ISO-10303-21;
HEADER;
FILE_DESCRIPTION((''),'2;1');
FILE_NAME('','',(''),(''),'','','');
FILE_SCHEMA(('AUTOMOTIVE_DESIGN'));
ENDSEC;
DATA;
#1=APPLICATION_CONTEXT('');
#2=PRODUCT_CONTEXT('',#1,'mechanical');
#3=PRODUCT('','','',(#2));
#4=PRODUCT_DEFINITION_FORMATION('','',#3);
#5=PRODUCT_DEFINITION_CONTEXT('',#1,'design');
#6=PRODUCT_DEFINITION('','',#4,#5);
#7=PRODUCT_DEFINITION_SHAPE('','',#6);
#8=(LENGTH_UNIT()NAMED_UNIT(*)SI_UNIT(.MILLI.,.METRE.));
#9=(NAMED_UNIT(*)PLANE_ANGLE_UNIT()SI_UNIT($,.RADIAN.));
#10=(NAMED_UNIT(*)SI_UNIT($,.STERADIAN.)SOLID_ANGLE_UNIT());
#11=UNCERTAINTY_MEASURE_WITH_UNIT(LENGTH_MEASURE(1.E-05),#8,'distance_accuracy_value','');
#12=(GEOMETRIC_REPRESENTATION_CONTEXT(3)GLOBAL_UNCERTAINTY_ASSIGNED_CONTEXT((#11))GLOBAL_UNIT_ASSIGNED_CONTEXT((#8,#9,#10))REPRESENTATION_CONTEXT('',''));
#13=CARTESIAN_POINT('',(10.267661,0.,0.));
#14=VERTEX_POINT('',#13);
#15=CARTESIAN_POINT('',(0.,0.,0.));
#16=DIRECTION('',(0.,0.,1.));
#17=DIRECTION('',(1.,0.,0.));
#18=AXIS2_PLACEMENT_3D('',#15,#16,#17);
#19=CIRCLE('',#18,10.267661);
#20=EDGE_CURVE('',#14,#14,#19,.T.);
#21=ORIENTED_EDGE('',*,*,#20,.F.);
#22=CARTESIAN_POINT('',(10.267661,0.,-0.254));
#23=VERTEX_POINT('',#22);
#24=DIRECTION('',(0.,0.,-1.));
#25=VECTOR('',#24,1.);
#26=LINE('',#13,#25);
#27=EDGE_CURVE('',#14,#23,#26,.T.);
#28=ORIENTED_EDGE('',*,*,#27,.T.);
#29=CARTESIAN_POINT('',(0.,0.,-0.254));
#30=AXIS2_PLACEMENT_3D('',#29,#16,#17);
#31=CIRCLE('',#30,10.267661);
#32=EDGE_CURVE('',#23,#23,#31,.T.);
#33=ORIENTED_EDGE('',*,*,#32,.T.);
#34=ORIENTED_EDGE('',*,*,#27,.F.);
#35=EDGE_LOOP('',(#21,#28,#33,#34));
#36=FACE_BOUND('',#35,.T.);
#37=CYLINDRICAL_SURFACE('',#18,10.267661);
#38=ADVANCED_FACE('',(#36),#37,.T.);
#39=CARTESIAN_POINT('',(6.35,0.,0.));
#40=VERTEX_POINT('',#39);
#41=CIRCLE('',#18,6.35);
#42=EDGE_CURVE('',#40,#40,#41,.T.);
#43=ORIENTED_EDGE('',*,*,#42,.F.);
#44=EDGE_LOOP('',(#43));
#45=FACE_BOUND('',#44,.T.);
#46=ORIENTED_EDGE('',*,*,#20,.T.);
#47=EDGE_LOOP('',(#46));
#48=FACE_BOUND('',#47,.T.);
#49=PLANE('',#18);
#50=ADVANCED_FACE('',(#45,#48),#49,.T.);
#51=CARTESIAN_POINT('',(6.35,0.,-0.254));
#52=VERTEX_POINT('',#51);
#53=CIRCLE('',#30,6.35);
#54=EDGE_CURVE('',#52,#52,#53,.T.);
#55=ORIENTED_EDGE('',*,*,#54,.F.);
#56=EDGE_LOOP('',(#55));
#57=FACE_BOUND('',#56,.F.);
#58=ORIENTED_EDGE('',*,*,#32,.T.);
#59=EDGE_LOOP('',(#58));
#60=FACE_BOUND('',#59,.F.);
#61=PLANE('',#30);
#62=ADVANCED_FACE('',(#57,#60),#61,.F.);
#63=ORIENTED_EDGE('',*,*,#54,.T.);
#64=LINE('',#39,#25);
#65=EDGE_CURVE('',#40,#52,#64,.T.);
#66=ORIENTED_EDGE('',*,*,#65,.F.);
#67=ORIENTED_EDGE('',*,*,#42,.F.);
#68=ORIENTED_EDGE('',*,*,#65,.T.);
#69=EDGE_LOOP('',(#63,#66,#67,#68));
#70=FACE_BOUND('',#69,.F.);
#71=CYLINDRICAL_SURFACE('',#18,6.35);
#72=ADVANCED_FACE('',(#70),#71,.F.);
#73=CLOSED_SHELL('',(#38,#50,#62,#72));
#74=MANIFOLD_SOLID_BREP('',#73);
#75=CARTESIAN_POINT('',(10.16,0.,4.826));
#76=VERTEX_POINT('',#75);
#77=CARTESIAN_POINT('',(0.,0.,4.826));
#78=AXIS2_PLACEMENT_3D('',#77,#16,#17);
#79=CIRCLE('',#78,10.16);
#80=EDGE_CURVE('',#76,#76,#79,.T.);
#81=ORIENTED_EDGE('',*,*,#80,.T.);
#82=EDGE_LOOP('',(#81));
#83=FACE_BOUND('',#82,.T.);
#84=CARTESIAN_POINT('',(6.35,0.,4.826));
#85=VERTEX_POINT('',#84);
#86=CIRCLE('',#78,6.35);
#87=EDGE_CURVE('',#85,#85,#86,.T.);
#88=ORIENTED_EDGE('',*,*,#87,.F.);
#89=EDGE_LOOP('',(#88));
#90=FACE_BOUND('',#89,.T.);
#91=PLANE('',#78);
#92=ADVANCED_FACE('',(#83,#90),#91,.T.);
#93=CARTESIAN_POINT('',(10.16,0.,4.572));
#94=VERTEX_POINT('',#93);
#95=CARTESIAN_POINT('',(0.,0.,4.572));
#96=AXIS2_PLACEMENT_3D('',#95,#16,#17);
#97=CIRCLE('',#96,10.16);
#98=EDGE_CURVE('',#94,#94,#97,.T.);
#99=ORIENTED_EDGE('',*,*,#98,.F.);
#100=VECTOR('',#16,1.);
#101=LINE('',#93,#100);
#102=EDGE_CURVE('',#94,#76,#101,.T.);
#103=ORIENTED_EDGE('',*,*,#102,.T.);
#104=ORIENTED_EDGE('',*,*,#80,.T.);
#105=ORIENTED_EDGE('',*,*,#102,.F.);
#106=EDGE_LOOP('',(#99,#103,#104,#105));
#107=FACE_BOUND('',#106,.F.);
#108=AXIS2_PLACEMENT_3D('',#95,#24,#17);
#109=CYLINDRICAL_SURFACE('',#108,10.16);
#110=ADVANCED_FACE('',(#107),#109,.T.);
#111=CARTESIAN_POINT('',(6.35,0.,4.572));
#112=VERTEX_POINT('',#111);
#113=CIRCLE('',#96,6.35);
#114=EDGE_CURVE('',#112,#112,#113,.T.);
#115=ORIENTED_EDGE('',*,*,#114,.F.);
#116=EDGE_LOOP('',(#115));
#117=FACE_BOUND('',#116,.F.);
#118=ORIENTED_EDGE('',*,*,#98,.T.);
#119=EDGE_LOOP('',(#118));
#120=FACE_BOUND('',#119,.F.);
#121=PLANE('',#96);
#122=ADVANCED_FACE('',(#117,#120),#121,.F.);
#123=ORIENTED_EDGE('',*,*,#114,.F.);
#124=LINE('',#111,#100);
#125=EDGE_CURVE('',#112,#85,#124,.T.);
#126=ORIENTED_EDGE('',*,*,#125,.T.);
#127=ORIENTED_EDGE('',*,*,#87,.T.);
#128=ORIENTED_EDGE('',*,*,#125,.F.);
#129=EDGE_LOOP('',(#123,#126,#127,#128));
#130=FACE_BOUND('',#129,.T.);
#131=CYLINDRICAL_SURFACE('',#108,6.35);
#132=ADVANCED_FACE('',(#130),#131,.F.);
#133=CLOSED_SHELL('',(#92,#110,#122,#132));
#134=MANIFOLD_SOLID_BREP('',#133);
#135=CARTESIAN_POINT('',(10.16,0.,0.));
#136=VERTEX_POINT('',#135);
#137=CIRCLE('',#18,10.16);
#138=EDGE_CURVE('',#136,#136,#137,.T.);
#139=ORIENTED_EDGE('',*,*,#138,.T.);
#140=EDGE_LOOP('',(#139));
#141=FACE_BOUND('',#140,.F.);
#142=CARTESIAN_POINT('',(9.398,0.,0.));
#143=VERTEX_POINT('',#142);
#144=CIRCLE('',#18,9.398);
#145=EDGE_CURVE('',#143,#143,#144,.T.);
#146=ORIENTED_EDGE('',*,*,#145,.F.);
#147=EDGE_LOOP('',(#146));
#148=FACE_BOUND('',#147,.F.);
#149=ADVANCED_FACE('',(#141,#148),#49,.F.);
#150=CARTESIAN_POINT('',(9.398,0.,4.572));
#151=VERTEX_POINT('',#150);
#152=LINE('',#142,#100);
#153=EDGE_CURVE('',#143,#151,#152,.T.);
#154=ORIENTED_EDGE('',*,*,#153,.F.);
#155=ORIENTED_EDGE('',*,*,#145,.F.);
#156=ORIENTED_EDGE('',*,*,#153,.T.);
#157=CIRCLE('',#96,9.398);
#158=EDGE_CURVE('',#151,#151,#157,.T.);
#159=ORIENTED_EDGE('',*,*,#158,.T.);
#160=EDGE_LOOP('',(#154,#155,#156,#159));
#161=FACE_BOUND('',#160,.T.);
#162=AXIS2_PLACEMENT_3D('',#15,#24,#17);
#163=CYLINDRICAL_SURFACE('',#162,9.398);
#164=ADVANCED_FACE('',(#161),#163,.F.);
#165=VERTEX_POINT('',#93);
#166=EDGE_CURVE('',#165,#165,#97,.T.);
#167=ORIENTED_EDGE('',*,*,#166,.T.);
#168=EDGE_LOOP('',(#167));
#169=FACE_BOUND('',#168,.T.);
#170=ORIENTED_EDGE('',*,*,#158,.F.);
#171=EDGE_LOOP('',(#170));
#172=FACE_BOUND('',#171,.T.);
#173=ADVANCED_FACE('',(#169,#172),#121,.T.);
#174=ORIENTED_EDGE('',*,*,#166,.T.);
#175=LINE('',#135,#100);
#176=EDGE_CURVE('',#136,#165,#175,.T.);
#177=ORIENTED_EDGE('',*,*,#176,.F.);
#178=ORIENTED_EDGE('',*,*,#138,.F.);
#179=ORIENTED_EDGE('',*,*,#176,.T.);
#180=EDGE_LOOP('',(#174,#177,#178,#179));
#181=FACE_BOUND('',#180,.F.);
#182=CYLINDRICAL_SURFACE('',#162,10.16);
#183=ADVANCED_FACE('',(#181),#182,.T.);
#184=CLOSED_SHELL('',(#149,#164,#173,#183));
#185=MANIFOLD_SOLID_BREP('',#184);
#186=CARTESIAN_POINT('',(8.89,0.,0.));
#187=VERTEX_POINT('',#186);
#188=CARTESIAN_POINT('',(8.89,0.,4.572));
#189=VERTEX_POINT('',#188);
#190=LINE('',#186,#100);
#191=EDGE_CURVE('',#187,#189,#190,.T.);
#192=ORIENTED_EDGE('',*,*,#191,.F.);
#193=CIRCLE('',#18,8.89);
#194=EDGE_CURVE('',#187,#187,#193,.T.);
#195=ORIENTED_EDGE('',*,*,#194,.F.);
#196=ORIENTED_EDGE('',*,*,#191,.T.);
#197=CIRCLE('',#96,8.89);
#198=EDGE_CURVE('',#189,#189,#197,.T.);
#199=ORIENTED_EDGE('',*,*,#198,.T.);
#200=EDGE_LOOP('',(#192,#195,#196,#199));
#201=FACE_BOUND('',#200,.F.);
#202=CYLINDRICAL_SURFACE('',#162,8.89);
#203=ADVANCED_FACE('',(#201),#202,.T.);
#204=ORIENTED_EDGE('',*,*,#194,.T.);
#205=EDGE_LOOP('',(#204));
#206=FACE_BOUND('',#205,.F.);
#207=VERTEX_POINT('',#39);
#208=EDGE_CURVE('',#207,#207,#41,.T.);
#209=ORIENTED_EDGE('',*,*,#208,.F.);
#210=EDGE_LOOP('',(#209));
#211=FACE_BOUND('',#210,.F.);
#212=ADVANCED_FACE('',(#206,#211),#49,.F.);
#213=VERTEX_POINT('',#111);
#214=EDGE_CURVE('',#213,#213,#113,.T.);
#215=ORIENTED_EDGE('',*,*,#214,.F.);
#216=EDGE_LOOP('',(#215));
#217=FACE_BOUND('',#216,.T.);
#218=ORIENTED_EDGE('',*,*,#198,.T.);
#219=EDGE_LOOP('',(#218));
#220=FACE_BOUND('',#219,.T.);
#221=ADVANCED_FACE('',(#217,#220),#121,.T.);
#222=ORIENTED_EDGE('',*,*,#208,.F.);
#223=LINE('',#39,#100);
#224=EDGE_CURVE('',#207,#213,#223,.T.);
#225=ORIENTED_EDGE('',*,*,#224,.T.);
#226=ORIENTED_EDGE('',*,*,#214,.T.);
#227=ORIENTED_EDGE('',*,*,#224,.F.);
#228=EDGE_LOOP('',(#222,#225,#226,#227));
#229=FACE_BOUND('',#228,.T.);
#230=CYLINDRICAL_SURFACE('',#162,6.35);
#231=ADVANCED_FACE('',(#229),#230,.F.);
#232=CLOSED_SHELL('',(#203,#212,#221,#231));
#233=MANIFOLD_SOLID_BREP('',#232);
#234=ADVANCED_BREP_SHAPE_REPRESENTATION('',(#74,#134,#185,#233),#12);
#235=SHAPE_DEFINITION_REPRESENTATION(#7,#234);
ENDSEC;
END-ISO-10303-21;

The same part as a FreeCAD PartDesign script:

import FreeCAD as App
import Part
import Sketcher
Q = App.Units.Quantity

doc = App.newDocument("Part")
body = doc.addObject("PartDesign::Body", "Body")

# Sketch on XY plane
sketch1 = body.newObject("Sketcher::SketchObject", "Sketch")
sketch1.AttachmentSupport = (doc.getObject("XY_Plane"), [""])
sketch1.MapMode = "FlatFace"
sketch1.addGeometry([
    Part.Circle(App.Vector(0, 0, 0), App.Vector(0, 0, 1), 9),
    Part.Circle(App.Vector(0, 0, 0), App.Vector(0, 0, 1), 6),
], False)
sketch1.addConstraint([
    Sketcher.Constraint("Coincident", 0, 3, -1, 1),
    Sketcher.Constraint("Coincident", 1, 3, -1, 1),
    Sketcher.Constraint("Diameter", 0, Q("0.7 in")),
    Sketcher.Constraint("Diameter", 1, Q("0.5 in")),
])
pad1 = body.newObject("PartDesign::Pad", "Pad")
pad1.Profile = sketch1
pad1.Length = Q("0.18 in")
body2 = doc.addObject("PartDesign::Body", "Body001")

# Sketch on XY plane
sketch2 = body2.newObject("Sketcher::SketchObject", "Sketch001")
sketch2.AttachmentSupport = (doc.getObject("XY_Plane001"), [""])
sketch2.MapMode = "FlatFace"
sketch2.addGeometry([
    Part.Circle(App.Vector(0, 0, 0), App.Vector(0, 0, 1), 10),
    Part.Circle(App.Vector(0, 0, 0), App.Vector(0, 0, 1), 9),
], False)
sketch2.addConstraint([
    Sketcher.Constraint("Coincident", 0, 3, -1, 1),
    Sketcher.Constraint("Coincident", 1, 3, -1, 1),
    Sketcher.Constraint("Diameter", 0, Q("0.8 in")),
    Sketcher.Constraint("Diameter", 1, Q("0.74 in")),
])
pad2 = body2.newObject("PartDesign::Pad", "Pad001")
pad2.Profile = sketch2
pad2.Length = Q("0.18 in")
body3 = doc.addObject("PartDesign::Body", "Body002")

# Sketch on XY plane
sketch3 = body3.newObject("Sketcher::SketchObject", "Sketch002")
sketch3.AttachmentSupport = (doc.getObject("XY_Plane002"), [""])
sketch3.MapMode = "FlatFace"
sketch3.addGeometry([
    Part.Circle(App.Vector(0, 0, 0), App.Vector(0, 0, 1), 10),
    Part.Circle(App.Vector(0, 0, 0), App.Vector(0, 0, 1), 6),
], False)
sketch3.addConstraint([
    Sketcher.Constraint("Coincident", 0, 3, -1, 1),
    Sketcher.Constraint("Coincident", 1, 3, -1, 1),
    Sketcher.Constraint("Diameter", 1, Q("0.5 in")),
    Sketcher.Constraint("Diameter", 0, 20.535322),
])
pad3 = body3.newObject("PartDesign::Pad", "Pad002")
pad3.Profile = sketch3
pad3.Length = Q("0.01 in")
pad3.Reversed = True
body4 = doc.addObject("PartDesign::Body", "Body003")

# Sketch on XY plane
sketch4 = body4.newObject("Sketcher::SketchObject", "Sketch003")
sketch4.AttachmentSupport = (doc.getObject("XY_Plane003"), [""])
sketch4.MapMode = "FlatFace"
sketch4.AttachmentOffset = App.Placement(App.Vector(0, 0, 0.18 * 25.4), App.Rotation())
sketch4.addGeometry([
    Part.Circle(App.Vector(0, 0, 0), App.Vector(0, 0, 1), 10),
    Part.Circle(App.Vector(0, 0, 0), App.Vector(0, 0, 1), 6),
], False)
sketch4.addConstraint([
    Sketcher.Constraint("Coincident", 0, 3, -1, 1),
    Sketcher.Constraint("Coincident", 1, 3, -1, 1),
    Sketcher.Constraint("Diameter", 0, Q("0.8 in")),
    Sketcher.Constraint("Diameter", 1, Q("0.5 in")),
])
pad4 = body4.newObject("PartDesign::Pad", "Pad003")
pad4.Profile = sketch4
pad4.Length = Q("0.01 in")

doc.recompute()
